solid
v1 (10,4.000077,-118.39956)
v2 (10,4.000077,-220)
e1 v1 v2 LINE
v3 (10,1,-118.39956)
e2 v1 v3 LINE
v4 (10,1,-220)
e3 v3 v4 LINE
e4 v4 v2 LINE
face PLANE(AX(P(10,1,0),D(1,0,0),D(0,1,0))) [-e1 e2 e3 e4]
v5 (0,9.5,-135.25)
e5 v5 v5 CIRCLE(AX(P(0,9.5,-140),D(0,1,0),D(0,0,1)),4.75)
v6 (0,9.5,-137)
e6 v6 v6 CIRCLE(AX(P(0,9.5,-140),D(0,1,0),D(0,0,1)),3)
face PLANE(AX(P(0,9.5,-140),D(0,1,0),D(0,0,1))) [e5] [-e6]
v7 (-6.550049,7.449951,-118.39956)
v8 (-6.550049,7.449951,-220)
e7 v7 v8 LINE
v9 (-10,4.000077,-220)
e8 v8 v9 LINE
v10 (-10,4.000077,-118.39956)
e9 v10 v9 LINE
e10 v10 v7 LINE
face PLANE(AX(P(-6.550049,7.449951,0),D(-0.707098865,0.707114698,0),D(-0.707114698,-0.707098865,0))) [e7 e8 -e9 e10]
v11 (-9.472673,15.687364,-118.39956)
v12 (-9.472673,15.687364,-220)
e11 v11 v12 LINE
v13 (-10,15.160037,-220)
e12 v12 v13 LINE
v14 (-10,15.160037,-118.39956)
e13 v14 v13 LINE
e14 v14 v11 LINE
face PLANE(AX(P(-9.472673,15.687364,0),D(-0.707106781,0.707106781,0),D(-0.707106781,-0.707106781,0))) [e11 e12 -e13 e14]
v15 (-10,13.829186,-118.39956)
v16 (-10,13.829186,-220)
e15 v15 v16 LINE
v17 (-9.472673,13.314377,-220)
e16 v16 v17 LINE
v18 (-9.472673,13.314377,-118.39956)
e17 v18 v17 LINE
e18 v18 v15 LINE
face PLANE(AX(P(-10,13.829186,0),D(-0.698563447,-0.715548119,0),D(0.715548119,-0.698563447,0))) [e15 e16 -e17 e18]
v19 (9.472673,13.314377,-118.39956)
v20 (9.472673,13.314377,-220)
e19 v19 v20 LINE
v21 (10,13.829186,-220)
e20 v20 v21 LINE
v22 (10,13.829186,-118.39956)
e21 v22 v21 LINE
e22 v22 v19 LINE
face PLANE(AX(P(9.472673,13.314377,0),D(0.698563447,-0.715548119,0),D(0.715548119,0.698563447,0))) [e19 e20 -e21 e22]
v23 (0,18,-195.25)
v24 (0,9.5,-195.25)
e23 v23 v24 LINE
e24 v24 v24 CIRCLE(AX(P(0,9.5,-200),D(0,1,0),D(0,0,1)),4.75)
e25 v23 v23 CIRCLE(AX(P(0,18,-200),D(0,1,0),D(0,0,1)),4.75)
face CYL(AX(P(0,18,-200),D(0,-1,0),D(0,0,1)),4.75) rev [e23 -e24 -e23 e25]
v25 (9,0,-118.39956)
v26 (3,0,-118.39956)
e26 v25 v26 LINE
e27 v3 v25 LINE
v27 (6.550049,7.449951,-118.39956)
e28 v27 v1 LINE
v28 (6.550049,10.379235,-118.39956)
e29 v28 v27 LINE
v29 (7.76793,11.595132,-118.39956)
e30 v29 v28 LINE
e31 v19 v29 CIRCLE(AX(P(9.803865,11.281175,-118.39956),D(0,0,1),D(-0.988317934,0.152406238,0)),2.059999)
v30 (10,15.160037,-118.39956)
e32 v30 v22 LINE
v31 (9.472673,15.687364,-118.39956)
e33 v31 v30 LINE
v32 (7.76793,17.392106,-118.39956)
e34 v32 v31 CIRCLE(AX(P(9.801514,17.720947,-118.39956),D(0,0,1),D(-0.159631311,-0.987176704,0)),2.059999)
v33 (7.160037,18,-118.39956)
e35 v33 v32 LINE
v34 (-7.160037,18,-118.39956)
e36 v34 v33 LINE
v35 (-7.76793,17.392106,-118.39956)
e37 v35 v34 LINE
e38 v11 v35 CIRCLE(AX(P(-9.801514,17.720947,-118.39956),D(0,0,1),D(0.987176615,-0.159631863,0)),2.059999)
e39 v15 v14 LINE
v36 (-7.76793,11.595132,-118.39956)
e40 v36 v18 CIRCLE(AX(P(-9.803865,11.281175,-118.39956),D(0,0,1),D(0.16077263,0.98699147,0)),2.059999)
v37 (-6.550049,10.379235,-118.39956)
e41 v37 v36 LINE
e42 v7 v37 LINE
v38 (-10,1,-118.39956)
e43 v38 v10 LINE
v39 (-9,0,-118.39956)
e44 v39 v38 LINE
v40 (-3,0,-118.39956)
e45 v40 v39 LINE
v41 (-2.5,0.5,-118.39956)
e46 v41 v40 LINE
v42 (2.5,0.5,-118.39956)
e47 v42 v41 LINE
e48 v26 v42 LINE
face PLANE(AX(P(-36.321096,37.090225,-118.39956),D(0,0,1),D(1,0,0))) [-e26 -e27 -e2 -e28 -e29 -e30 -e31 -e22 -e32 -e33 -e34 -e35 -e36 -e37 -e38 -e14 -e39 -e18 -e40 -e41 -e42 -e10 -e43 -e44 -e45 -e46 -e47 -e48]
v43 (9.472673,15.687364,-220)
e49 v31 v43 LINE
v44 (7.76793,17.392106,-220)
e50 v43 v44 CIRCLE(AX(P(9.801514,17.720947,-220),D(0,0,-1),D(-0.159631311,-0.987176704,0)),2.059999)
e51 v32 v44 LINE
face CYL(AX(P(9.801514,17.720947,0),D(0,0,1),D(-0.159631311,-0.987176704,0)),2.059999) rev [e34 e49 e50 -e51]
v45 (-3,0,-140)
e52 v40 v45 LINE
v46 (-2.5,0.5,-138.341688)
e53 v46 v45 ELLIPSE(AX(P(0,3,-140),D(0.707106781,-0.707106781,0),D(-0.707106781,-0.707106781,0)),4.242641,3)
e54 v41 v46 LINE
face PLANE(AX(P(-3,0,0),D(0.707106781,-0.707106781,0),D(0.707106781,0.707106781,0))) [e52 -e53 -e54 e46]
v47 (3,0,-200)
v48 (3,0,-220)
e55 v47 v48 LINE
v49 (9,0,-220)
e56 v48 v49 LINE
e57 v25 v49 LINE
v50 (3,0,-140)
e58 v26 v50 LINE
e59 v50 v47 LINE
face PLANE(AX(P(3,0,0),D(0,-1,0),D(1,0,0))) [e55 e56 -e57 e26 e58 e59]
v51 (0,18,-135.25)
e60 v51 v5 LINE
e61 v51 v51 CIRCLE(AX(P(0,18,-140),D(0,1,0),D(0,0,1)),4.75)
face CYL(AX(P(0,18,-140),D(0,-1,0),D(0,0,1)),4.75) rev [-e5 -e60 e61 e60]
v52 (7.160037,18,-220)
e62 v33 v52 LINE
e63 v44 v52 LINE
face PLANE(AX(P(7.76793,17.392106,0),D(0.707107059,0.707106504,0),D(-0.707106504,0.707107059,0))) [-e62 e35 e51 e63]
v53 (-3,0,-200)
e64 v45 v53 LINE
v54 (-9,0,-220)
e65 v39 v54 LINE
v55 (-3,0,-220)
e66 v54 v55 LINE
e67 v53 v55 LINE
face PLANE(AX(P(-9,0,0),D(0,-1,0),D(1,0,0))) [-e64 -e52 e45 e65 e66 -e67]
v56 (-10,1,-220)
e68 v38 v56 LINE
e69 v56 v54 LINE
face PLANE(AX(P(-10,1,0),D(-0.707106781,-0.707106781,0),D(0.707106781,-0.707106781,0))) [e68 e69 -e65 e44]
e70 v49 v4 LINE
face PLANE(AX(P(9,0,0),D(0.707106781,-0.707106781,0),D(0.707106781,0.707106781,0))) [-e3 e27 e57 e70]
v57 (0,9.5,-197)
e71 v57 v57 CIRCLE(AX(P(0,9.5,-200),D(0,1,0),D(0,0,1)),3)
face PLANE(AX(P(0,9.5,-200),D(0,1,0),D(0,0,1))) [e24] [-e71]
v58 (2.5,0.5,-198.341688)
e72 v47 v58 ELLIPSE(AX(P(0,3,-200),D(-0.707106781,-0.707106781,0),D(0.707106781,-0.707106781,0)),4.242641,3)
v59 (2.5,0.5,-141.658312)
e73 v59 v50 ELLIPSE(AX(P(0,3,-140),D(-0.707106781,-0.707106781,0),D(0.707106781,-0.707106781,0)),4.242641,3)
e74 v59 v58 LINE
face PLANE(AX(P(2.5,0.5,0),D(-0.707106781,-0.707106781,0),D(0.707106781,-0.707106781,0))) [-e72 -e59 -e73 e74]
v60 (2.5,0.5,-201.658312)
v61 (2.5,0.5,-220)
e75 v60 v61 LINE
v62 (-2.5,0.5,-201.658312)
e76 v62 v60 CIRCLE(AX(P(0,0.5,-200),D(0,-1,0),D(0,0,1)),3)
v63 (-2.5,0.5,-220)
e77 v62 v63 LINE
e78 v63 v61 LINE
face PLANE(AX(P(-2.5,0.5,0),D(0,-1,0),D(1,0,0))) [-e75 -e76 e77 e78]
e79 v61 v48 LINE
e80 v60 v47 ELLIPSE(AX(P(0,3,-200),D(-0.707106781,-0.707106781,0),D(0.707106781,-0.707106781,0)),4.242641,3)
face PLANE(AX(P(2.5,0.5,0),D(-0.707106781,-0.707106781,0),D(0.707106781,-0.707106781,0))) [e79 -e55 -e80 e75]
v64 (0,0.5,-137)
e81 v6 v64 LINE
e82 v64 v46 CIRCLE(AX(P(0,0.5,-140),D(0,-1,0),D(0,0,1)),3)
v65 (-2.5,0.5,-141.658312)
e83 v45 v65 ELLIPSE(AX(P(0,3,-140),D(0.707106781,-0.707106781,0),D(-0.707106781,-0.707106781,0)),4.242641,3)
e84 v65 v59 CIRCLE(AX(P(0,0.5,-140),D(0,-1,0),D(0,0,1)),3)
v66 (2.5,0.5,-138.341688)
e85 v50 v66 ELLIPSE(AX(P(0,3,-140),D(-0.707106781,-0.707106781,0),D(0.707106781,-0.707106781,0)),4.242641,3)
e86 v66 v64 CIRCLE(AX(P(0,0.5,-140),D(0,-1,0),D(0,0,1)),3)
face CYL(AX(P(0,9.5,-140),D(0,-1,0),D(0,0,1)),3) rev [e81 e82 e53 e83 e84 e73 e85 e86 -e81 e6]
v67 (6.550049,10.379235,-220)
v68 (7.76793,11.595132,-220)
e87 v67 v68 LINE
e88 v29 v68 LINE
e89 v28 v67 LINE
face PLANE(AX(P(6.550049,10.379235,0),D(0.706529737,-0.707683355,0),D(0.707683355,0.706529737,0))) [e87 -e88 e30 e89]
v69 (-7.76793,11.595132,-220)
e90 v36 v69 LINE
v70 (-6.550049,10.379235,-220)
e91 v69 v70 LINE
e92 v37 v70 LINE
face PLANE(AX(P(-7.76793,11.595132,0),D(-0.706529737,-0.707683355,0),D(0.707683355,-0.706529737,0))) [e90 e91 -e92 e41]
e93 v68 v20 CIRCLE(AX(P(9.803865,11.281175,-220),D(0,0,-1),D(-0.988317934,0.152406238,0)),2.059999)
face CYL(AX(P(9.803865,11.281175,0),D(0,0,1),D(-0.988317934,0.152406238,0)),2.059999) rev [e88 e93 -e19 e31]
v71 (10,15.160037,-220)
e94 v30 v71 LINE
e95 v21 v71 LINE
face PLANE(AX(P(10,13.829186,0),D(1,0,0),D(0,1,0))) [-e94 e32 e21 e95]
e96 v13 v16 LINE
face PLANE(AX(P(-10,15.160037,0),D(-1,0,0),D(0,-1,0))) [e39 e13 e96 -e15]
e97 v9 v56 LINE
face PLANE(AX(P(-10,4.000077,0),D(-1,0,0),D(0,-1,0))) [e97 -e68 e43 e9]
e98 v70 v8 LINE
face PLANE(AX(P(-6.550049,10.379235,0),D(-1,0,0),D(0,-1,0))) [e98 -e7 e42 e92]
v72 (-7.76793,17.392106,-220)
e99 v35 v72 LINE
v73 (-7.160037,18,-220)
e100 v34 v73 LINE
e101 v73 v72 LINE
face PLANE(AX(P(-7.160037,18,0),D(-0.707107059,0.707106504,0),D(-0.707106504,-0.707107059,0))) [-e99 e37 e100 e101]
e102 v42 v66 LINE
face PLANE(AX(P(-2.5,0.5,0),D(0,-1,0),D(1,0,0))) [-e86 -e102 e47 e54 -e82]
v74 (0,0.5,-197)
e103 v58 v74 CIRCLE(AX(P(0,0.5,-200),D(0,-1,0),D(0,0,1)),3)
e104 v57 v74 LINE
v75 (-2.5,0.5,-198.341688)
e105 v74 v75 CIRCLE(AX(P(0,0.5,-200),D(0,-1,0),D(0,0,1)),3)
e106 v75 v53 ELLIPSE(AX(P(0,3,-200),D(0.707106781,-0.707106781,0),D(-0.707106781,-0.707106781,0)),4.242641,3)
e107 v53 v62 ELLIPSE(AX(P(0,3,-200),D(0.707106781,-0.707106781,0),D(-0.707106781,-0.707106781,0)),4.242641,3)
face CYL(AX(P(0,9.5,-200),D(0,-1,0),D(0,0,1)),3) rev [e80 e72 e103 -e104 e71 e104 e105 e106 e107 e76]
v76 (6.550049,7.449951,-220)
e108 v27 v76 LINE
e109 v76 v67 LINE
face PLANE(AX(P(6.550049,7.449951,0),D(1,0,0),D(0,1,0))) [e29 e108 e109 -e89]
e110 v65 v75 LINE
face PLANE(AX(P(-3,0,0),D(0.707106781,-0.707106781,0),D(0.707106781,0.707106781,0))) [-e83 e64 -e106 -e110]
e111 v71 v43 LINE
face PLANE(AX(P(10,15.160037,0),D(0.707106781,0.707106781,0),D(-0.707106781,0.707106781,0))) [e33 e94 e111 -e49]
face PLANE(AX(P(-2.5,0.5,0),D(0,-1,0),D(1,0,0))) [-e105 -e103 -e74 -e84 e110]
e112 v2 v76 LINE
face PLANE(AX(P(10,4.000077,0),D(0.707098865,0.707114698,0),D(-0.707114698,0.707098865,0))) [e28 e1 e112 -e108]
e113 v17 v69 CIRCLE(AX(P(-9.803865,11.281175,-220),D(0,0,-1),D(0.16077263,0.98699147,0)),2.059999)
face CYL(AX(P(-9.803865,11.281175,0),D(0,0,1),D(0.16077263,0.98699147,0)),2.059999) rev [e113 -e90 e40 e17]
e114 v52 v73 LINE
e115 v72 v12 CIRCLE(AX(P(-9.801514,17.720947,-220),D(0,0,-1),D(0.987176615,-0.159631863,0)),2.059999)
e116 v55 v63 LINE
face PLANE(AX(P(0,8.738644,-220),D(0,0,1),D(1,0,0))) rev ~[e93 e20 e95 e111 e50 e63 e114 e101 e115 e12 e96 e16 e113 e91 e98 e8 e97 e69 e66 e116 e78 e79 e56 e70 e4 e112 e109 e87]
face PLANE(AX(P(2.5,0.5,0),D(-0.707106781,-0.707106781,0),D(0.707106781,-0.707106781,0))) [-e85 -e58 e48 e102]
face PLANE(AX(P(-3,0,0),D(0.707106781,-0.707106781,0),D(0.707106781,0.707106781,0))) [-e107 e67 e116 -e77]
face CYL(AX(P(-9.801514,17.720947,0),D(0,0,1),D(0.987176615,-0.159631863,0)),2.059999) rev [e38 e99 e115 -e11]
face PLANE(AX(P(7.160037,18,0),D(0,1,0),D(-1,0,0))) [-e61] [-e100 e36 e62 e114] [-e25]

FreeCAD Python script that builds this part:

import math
import FreeCAD as App
import Part
import Sketcher

V = App.Vector
Q = App.Units.Quantity

doc = App.newDocument("Part")
body = doc.addObject("PartDesign::Body", "Body")

# Sketch on XY plane
sketch1 = body.newObject("Sketcher::SketchObject", "Sketch")
sketch1.AttachmentSupport = (doc.getObject("XY_Plane"), [""])
sketch1.MapMode = "FlatFace"
sketch1.addGeometry([
    Part.LineSegment(V(-10, 4, 0), V(-10, 1, 0)),  # 0
    Part.LineSegment(V(-10, 1, 0), V(-9, 0, 0)),  # 1
    Part.LineSegment(V(-9, 0, 0), V(-3, 0, 0)),  # 2
    Part.LineSegment(V(-3, 0, 0), V(-2.5, 0.5, 0)),  # 3
    Part.LineSegment(V(-2.5, 0.5, 0), V(2.5, 0.5, 0)),  # 4
    Part.LineSegment(V(2.5, 0.5, 0), V(3, 0, 0)),  # 5
    Part.LineSegment(V(3, 0, 0), V(9, 0, 0)),  # 6
    Part.LineSegment(V(9, 0, 0), V(10, 1, 0)),  # 7
    Part.LineSegment(V(10, 1, 0), V(10, 4, 0)),  # 8
    Part.LineSegment(V(10, 4, 0), V(6.6, 7.4, 0)),  # 9
    Part.LineSegment(V(6.6, 7.4, 0), V(6.6, 10.4, 0)),  # 10
    Part.LineSegment(V(6.6, 10.4, 0), V(7.8, 11.6, 0)),  # 11
    Part.ArcOfCircle(Part.Circle(V(9.8, 11.3, 0), V(0, 0, 1), 2.1), math.radians(99), math.radians(171)),  # 12
    Part.LineSegment(V(9.5, 13.3, 0), V(10, 13.8, 0)),  # 13
    Part.LineSegment(V(10, 13.8, 0), V(10, 15.2, 0)),  # 14
    Part.LineSegment(V(10, 15.2, 0), V(9.5, 15.7, 0)),  # 15
    Part.ArcOfCircle(Part.Circle(V(9.8, 17.7, 0), V(0, 0, 1), 2.1), math.radians(-171), math.radians(-99)),  # 16
    Part.LineSegment(V(7.8, 17.4, 0), V(7.2, 18, 0)),  # 17
    Part.LineSegment(V(7.2, 18, 0), V(-7.2, 18, 0)),  # 18
    Part.LineSegment(V(-7.2, 18, 0), V(-7.8, 17.4, 0)),  # 19
    Part.ArcOfCircle(Part.Circle(V(-9.8, 17.7, 0), V(0, 0, 1), 2.1), math.radians(-81), math.radians(-9)),  # 20
    Part.LineSegment(V(-9.5, 15.7, 0), V(-10, 15.2, 0)),  # 21
    Part.LineSegment(V(-10, 15.2, 0), V(-10, 13.8, 0)),  # 22
    Part.LineSegment(V(-10, 13.8, 0), V(-9.5, 13.3, 0)),  # 23
    Part.ArcOfCircle(Part.Circle(V(-9.8, 11.3, 0), V(0, 0, 1), 2.1), math.radians(9), math.radians(81)),  # 24
    Part.LineSegment(V(-7.8, 11.6, 0), V(-6.6, 10.4, 0)),  # 25
    Part.LineSegment(V(-6.6, 10.4, 0), V(-6.6, 7.4, 0)),  # 26
    Part.LineSegment(V(-6.6, 7.4, 0), V(-10, 4, 0)),  # 27
], False)
sketch1.addConstraint([
    Sketcher.Constraint("Coincident", 0, 2, 1, 1),
    Sketcher.Constraint("Coincident", 1, 2, 2, 1),
    Sketcher.Constraint("Coincident", 2, 2, 3, 1),
    Sketcher.Constraint("Coincident", 3, 2, 4, 1),
    Sketcher.Constraint("Coincident", 4, 2, 5, 1),
    Sketcher.Constraint("Coincident", 5, 2, 6, 1),
    Sketcher.Constraint("Coincident", 6, 2, 7, 1),
    Sketcher.Constraint("Coincident", 7, 2, 8, 1),
    Sketcher.Constraint("Coincident", 8, 2, 9, 1),
    Sketcher.Constraint("Coincident", 9, 2, 10, 1),
    Sketcher.Constraint("Coincident", 10, 2, 11, 1),
    Sketcher.Constraint("Coincident", 11, 2, 12, 2),
    Sketcher.Constraint("Coincident", 12, 1, 13, 1),
    Sketcher.Constraint("Coincident", 13, 2, 14, 1),
    Sketcher.Constraint("Coincident", 14, 2, 15, 1),
    Sketcher.Constraint("Coincident", 15, 2, 16, 2),
    Sketcher.Constraint("Coincident", 16, 1, 17, 1),
    Sketcher.Constraint("Coincident", 17, 2, 18, 1),
    Sketcher.Constraint("Coincident", 18, 2, 19, 1),
    Sketcher.Constraint("Coincident", 19, 2, 20, 2),
    Sketcher.Constraint("Coincident", 20, 1, 21, 1),
    Sketcher.Constraint("Coincident", 21, 2, 22, 1),
    Sketcher.Constraint("Coincident", 22, 2, 23, 1),
    Sketcher.Constraint("Coincident", 23, 2, 24, 2),
    Sketcher.Constraint("Coincident", 24, 1, 25, 1),
    Sketcher.Constraint("Coincident", 25, 2, 26, 1),
    Sketcher.Constraint("Coincident", 26, 2, 27, 1),
    Sketcher.Constraint("Coincident", 27, 2, 0, 1),
    Sketcher.Constraint("Vertical", 0),
    Sketcher.Constraint("Horizontal", 2),
    Sketcher.Constraint("Horizontal", 4),
    Sketcher.Constraint("Horizontal", 6),
    Sketcher.Constraint("Vertical", 8),
    Sketcher.Constraint("Vertical", 10),
    Sketcher.Constraint("Vertical", 14),
    Sketcher.Constraint("Horizontal", 18),
    Sketcher.Constraint("Vertical", 22),
    Sketcher.Constraint("Vertical", 26),
    Sketcher.Constraint("Equal", 12, 16),
    Sketcher.Constraint("Equal", 16, 20),
    Sketcher.Constraint("Equal", 20, 24),
    Sketcher.Constraint("Symmetric", 2, 2, 5, 2, -1, 1),
    Sketcher.Constraint("Symmetric", 16, 3, 20, 3, -2),
    Sketcher.Constraint("Symmetric", 12, 3, 24, 3, -2),
    Sketcher.Constraint("Symmetric", 1, 2, 6, 2, -2),
    Sketcher.Constraint("Symmetric", 0, 2, 7, 2, -2),
    Sketcher.Constraint("Symmetric", 14, 2, 21, 2, -2),
    Sketcher.Constraint("Symmetric", 10, 2, 25, 2, -2),
    Sketcher.Constraint("Perpendicular", 1, 3),
    Sketcher.Constraint("Perpendicular", 3, 5),
    Sketcher.Constraint("Perpendicular", 5, 7),
    Sketcher.Constraint("Perpendicular", 7, 15),
    Sketcher.Constraint("Parallel", 15, 17),
    Sketcher.Constraint("Perpendicular", 17, 19),
    Sketcher.Constraint("Parallel", 19, 21),
    Sketcher.Constraint("Horizontal", 16, 1, 19, 2),
    Sketcher.Constraint("Horizontal", 13, 2, 22, 2),
    Sketcher.Constraint("Horizontal", 12, 1, 23, 2),
    Sketcher.Constraint("Horizontal", 11, 2, 24, 1),
    Sketcher.Constraint("Horizontal", 9, 2, 26, 2),
    Sketcher.Constraint("Horizontal", 8, 2, 27, 2),
    Sketcher.Constraint("Vertical", 8, 2, 13, 2),
    Sketcher.Constraint("Vertical", 12, 1, 15, 2),
    Sketcher.Constraint("Vertical", 11, 2, 16, 1),
    Sketcher.Constraint("DistanceX", 2, 1, 2, 2, Q("6 mm")),
    Sketcher.Constraint("DistanceX", 4, 1, 4, 2, Q("5 mm")),
    Sketcher.Constraint("Radius", 12, Q("2.059999 mm")),
    Sketcher.Constraint("DistanceX", 0, 2, -1, 1, Q("10 mm")),
    Sketcher.Constraint("DistanceY", -1, 1, 0, 2, Q("1 mm")),
    Sketcher.Constraint("DistanceY", -1, 1, 17, 2, Q("18 mm")),
    Sketcher.Constraint("DistanceY", 14, 1, 14, 2, Q("1.330851 mm")),
    Sketcher.Constraint("DistanceY", 12, 3, 12, 1, Q("2.033202 mm")),
    Sketcher.Constraint("DistanceY", 25, 2, 21, 2, Q("4.780802 mm")),
    Sketcher.Constraint("Distance", 11, Q("1.720941 mm")),
    Sketcher.Constraint("DistanceX", 18, 2, 18, 1, Q("14.320073 mm")),
    Sketcher.Constraint("DistanceY", 0, 2, 0, 1, Q("3.000077 mm")),
    Sketcher.Constraint("DistanceY", 10, 1, 10, 2, Q("2.929284 mm")),
    Sketcher.Constraint("DistanceX", -1, 1, 9, 2, Q("6.550049 mm")),
    Sketcher.Constraint("DistanceY", -1, 1, 9, 2, Q("7.449951 mm")),
    Sketcher.Constraint("DistanceX", -1, 1, 11, 2, Q("7.76793 mm")),
    Sketcher.Constraint("DistanceX", 16, 3, 12, 3, Q("0.002351 mm")),
])
pad1 = body.newObject("PartDesign::Pad", "Pad")
pad1.Profile = sketch1
pad1.Length = 220
pad1.Reversed = True

# Sketch on YZ plane
sketch2 = body.newObject("Sketcher::SketchObject", "Sketch001")
sketch2.AttachmentSupport = (doc.getObject("YZ_Plane"), [""])
sketch2.MapMode = "FlatFace"
sketch2.addGeometry([
    Part.LineSegment(V(18, -24.8, 0), V(18, -20, 0)),  # 0
    Part.LineSegment(V(18, -20, 0), V(0, -20, 0)),  # 1
    Part.LineSegment(V(0, -20, 0), V(0, -23, 0)),  # 2
    Part.LineSegment(V(0, -23, 0), V(9.5, -23, 0)),  # 3
    Part.LineSegment(V(9.5, -23, 0), V(9.5, -24.8, 0)),  # 4
    Part.LineSegment(V(9.5, -24.8, 0), V(18, -24.8, 0)),  # 5
], False)
sketch2.addGeometry(Part.LineSegment(V(0, -20, 0), V(18, -20, 0)), True)  # axis
sketch2.addConstraint([
    Sketcher.Constraint("Coincident", 0, 2, 1, 1),
    Sketcher.Constraint("Coincident", 1, 2, 2, 1),
    Sketcher.Constraint("Coincident", 2, 2, 3, 1),
    Sketcher.Constraint("Coincident", 3, 2, 4, 1),
    Sketcher.Constraint("Coincident", 4, 2, 5, 1),
    Sketcher.Constraint("Coincident", 5, 2, 0, 1),
    Sketcher.Constraint("Vertical", 0),
    Sketcher.Constraint("Horizontal", 1),
    Sketcher.Constraint("Vertical", 2),
    Sketcher.Constraint("Horizontal", 3),
    Sketcher.Constraint("Vertical", 4),
    Sketcher.Constraint("Horizontal", 5),
    Sketcher.Constraint("Horizontal", 6),
    Sketcher.Constraint("Coincident", 6, 1, 1, 2),
    Sketcher.Constraint("PointOnObject", 1, 2, -2),
    Sketcher.Constraint("Vertical", 5, 2, 6, 2),
    Sketcher.Constraint("DistanceX", 1, 2, 1, 1, Q("18 mm")),
    Sketcher.Constraint("DistanceY", 2, 2, 2, 1, Q("3 mm")),
    Sketcher.Constraint("DistanceX", 3, 1, 3, 2, Q("9.5 mm")),
    Sketcher.Constraint("DistanceY", 0, 2, -1, 1, Q("20 mm")),
    Sketcher.Constraint("DistanceY", 0, 1, 0, 2, Q("4.75 mm")),
])
groove = body.newObject("PartDesign::Groove", "Groove")
groove.Profile = sketch2
groove.ReferenceAxis = (sketch2, ["Axis0"])
groove.Angle = 360
doc.recompute()

linearpattern = body.newObject("PartDesign::LinearPattern", "LinearPattern")
linearpattern.Originals = [groove]
linearpattern.Direction = (doc.getObject("Z_Axis"), [""])
linearpattern.Mode = "offset"
linearpattern.Offset = 60
linearpattern.Occurrences = 4
linearpattern.Reversed = True
body.Tip = linearpattern

# Sketch on XY plane
sketch3 = body.newObject("Sketcher::SketchObject", "Sketch002")
sketch3.AttachmentSupport = (doc.getObject("XY_Plane"), [""])
sketch3.MapMode = "FlatFace"
sketch3.addGeometry(Part.Circle(V(-36, 37, 0), V(0, 0, 1), 82), False)
sketch3.addConstraint([
    Sketcher.Constraint("Diameter", 0, Q("164.698396 mm")),
    Sketcher.Constraint("DistanceX", 0, 3, -1, 1, Q("36.321096 mm")),
    Sketcher.Constraint("DistanceY", -1, 1, 0, 3, Q("37.090225 mm")),
])
pocket1 = body.newObject("PartDesign::Pocket", "Pocket")
pocket1.Profile = sketch3
pocket1.Length = 118.39956

doc.recompute()
